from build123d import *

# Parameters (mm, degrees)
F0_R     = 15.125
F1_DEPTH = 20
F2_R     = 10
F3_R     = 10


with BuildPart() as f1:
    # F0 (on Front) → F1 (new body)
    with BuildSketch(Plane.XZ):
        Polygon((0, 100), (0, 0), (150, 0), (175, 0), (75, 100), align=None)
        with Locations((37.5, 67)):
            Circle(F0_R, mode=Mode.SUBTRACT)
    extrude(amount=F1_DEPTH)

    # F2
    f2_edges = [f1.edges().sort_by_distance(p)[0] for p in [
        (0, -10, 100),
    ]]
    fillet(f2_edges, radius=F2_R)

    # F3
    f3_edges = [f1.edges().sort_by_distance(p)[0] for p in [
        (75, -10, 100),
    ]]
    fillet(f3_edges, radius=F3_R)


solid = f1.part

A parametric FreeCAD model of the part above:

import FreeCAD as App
import Part
import Sketcher
Q = App.Units.Quantity


def edges_at(feature, points):
    """Names of the edges that pass closest to the given points."""
    edges = feature.Shape.Edges
    near = lambda p: min(range(len(edges)), key=lambda i: edges[i].distToShape(Part.Vertex(*p))[0])
    return sorted({f"Edge{near(p) + 1}" for p in points})


def add_polygon(sketch, points):
    """Adds a closed chain of lines whose ends are joined by coincident constraints."""
    first, n = sketch.GeometryCount, len(points)
    for a, b in zip(points, points[1:] + points[:1]):
        sketch.addGeometry(Part.LineSegment(App.Vector(*a, 0), App.Vector(*b, 0)), False)
    for i in range(n):
        sketch.addConstraint(Sketcher.Constraint("Coincident", first + i, 2, first + (i + 1) % n, 1))

doc = App.newDocument("Part")
body = doc.addObject("PartDesign::Body", "Body")

# Sketch on XZ plane
sketch1 = doc.addObject("Sketcher::SketchObject", "Sketch")
body.addObject(sketch1)
sketch1.AttachmentSupport = (doc.XZ_Plane, [""])
sketch1.MapMode = "FlatFace"
add_polygon(sketch1, [(0, 100), (0, 0), (175, 0), (75, 100)])  # lines 0-3
sketch1.addGeometry(Part.Circle(App.Vector(38, 67, 0), App.Vector(0, 0, 1), 15), False)  # 4
sketch1.addConstraint([
    Sketcher.Constraint("Vertical", 0),
    Sketcher.Constraint("Horizontal", 1),
    Sketcher.Constraint("Horizontal", 3),
    Sketcher.Constraint("Coincident", 0, 2, -1, 1),
    Sketcher.Constraint("Diameter", 4, Q("30.25 mm")),
    Sketcher.Constraint("DistanceX", 1, 1, 1, 2, Q("175 mm")),
    Sketcher.Constraint("DistanceX", 3, 2, 3, 1, Q("75 mm")),
    Sketcher.Constraint("DistanceY", 0, 2, 0, 1, Q("100 mm")),
    Sketcher.Constraint("DistanceY", -1, 1, 4, 3, Q("67 mm")),
    Sketcher.Constraint("DistanceX", -1, 1, 4, 3, Q("37.5 mm")),
])
pad1 = doc.addObject("PartDesign::Pad", "Pad")
body.addObject(pad1)
pad1.Profile = sketch1
pad1.Length = 20
doc.recompute()

fillet = doc.addObject("PartDesign::Fillet", "Fillet")
body.addObject(fillet)
fillet.Base = (pad1, edges_at(pad1, [(0, -10, 100)]))
fillet.Radius = 10
doc.recompute()

fillet2 = doc.addObject("PartDesign::Fillet", "Fillet001")
body.addObject(fillet2)
fillet2.Base = (fillet, edges_at(fillet, [(75, -10, 100)]))
fillet2.Radius = 10

doc.recompute()
